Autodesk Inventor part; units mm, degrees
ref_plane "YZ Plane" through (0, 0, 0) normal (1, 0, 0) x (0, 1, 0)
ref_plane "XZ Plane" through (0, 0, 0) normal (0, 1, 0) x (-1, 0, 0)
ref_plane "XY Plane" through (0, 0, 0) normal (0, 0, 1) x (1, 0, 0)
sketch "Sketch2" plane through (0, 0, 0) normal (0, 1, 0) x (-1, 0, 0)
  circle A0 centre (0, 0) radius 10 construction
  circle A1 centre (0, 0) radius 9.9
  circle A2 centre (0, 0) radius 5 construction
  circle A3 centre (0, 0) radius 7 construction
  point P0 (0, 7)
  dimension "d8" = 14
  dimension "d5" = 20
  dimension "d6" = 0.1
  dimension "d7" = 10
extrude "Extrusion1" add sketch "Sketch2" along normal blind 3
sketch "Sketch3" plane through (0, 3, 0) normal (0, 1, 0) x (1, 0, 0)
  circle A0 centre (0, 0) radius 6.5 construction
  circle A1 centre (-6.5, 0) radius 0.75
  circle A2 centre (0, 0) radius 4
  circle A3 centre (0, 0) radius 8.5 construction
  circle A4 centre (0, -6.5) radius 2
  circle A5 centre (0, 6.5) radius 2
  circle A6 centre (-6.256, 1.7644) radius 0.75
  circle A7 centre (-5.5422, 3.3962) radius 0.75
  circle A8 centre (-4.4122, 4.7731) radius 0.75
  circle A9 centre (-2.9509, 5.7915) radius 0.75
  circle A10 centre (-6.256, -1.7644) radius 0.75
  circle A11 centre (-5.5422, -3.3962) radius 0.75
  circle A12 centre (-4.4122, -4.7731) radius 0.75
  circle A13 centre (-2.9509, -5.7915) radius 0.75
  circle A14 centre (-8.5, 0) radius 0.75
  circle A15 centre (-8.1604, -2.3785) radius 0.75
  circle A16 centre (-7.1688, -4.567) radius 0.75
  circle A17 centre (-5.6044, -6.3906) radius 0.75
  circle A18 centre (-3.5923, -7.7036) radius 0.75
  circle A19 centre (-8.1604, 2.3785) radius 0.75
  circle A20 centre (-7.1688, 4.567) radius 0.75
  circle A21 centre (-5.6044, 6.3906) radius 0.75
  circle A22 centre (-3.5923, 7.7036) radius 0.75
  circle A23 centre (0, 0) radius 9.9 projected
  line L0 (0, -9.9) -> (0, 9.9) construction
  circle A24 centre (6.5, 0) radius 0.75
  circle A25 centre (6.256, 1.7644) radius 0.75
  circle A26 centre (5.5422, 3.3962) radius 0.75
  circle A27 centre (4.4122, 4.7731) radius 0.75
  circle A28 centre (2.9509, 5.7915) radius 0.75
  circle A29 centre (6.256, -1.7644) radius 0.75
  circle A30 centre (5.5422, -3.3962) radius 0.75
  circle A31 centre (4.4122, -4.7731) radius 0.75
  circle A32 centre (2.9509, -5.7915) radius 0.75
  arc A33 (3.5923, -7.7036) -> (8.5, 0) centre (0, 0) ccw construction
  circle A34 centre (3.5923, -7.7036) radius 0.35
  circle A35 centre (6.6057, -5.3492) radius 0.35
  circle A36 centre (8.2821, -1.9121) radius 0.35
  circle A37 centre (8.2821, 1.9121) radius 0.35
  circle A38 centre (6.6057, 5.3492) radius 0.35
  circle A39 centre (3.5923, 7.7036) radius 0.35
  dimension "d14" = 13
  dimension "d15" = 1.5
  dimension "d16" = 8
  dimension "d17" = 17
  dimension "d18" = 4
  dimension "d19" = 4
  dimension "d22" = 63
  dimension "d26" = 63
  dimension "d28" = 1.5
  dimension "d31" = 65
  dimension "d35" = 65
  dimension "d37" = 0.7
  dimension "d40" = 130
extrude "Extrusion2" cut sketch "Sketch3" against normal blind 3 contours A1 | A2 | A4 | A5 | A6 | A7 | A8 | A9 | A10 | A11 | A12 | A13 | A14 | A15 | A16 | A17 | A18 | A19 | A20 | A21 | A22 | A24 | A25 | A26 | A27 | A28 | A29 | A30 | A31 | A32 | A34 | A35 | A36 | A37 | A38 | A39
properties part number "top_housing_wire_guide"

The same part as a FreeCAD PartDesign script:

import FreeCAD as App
import Part
import Sketcher
Q = App.Units.Quantity

doc = App.newDocument("Part")
body = doc.addObject("PartDesign::Body", "Body")

sketch1 = doc.addObject("Sketcher::SketchObject", "Sketch")
body.addObject(sketch1)
sketch1.AttachmentSupport = (doc.XZ_Plane, [""])
sketch1.MapMode = "FlatFace"
sketch1.addGeometry(Part.Circle(App.Vector(0, 0, 0), App.Vector(0, 0, 1), 9.9), False)
sketch1.addConstraint([
    Sketcher.Constraint("Coincident", 0, 3, -1, 1),
    Sketcher.Constraint("Diameter", 0, Q("19.8 mm")),
])
pad1 = doc.addObject("PartDesign::Pad", "Pad")
body.addObject(pad1)
pad1.Profile = sketch1
pad1.Length = 3
pad1.Reversed = True

sketch2 = doc.addObject("Sketcher::SketchObject", "Sketch001")
body.addObject(sketch2)
sketch2.AttachmentSupport = (doc.XZ_Plane, [""])
sketch2.MapMode = "FlatFace"
sketch2.AttachmentOffset = App.Placement(App.Vector(0, 0, -3), App.Rotation())
sketch2.addGeometry([
    Part.Circle(App.Vector(-6.5, 0, 0), App.Vector(0, 0, 1), 0.75),
    Part.Circle(App.Vector(0, 0, 0), App.Vector(0, 0, 1), 4),
    Part.Circle(App.Vector(0, 6.5, 0), App.Vector(0, 0, 1), 2),
    Part.Circle(App.Vector(0, -6.5, 0), App.Vector(0, 0, 1), 2),
    Part.Circle(App.Vector(-6.256, -1.7644, 0), App.Vector(0, 0, 1), 0.75),
    Part.Circle(App.Vector(-5.5422, -3.3962, 0), App.Vector(0, 0, 1), 0.75),
    Part.Circle(App.Vector(-4.4122, -4.7731, 0), App.Vector(0, 0, 1), 0.75),
    Part.Circle(App.Vector(-2.9509, -5.7915, 0), App.Vector(0, 0, 1), 0.75),
    Part.Circle(App.Vector(-6.256, 1.7644, 0), App.Vector(0, 0, 1), 0.75),
    Part.Circle(App.Vector(-5.5422, 3.3962, 0), App.Vector(0, 0, 1), 0.75),
    Part.Circle(App.Vector(-4.4122, 4.7731, 0), App.Vector(0, 0, 1), 0.75),
    Part.Circle(App.Vector(-2.9509, 5.7915, 0), App.Vector(0, 0, 1), 0.75),
    Part.Circle(App.Vector(-8.5, 0, 0), App.Vector(0, 0, 1), 0.75),
    Part.Circle(App.Vector(-8.1604, 2.3785, 0), App.Vector(0, 0, 1), 0.75),
    Part.Circle(App.Vector(-7.1688, 4.567, 0), App.Vector(0, 0, 1), 0.75),
    Part.Circle(App.Vector(-5.6044, 6.3906, 0), App.Vector(0, 0, 1), 0.75),
    Part.Circle(App.Vector(-3.5923, 7.7036, 0), App.Vector(0, 0, 1), 0.75),
    Part.Circle(App.Vector(-8.1604, -2.3785, 0), App.Vector(0, 0, 1), 0.75),
    Part.Circle(App.Vector(-7.1688, -4.567, 0), App.Vector(0, 0, 1), 0.75),
    Part.Circle(App.Vector(-5.6044, -6.3906, 0), App.Vector(0, 0, 1), 0.75),
    Part.Circle(App.Vector(-3.5923, -7.7036, 0), App.Vector(0, 0, 1), 0.75),
    Part.Circle(App.Vector(6.5, 0, 0), App.Vector(0, 0, 1), 0.75),
    Part.Circle(App.Vector(6.256, -1.7644, 0), App.Vector(0, 0, 1), 0.75),
    Part.Circle(App.Vector(5.5422, -3.3962, 0), App.Vector(0, 0, 1), 0.75),
    Part.Circle(App.Vector(4.4122, -4.7731, 0), App.Vector(0, 0, 1), 0.75),
    Part.Circle(App.Vector(2.9509, -5.7915, 0), App.Vector(0, 0, 1), 0.75),
    Part.Circle(App.Vector(6.256, 1.7644, 0), App.Vector(0, 0, 1), 0.75),
    Part.Circle(App.Vector(5.5422, 3.3962, 0), App.Vector(0, 0, 1), 0.75),
    Part.Circle(App.Vector(4.4122, 4.7731, 0), App.Vector(0, 0, 1), 0.75),
    Part.Circle(App.Vector(2.9509, 5.7915, 0), App.Vector(0, 0, 1), 0.75),
    Part.Circle(App.Vector(3.5923, 7.7036, 0), App.Vector(0, 0, 1), 0.35),
    Part.Circle(App.Vector(6.6057, 5.3492, 0), App.Vector(0, 0, 1), 0.35),
    Part.Circle(App.Vector(8.2821, 1.9121, 0), App.Vector(0, 0, 1), 0.35),
    Part.Circle(App.Vector(8.2821, -1.9121, 0), App.Vector(0, 0, 1), 0.35),
    Part.Circle(App.Vector(6.6057, -5.3492, 0), App.Vector(0, 0, 1), 0.35),
    Part.Circle(App.Vector(3.5923, -7.7036, 0), App.Vector(0, 0, 1), 0.35),
], False)
sketch2.addConstraint([
    Sketcher.Constraint("Coincident", 1, 3, -1, 1),
    Sketcher.Constraint("Equal", 2, 3),
    Sketcher.Constraint("Equal", 0, 4),
    Sketcher.Constraint("Equal", 4, 5),
    Sketcher.Constraint("Equal", 5, 6),
    Sketcher.Constraint("Equal", 6, 7),
    Sketcher.Constraint("Equal", 7, 8),
    Sketcher.Constraint("Equal", 8, 9),
    Sketcher.Constraint("Equal", 9, 10),
    Sketcher.Constraint("Equal", 10, 11),
    Sketcher.Constraint("Equal", 11, 12),
    Sketcher.Constraint("Equal", 12, 13),
    Sketcher.Constraint("Equal", 13, 14),
    Sketcher.Constraint("Equal", 14, 15),
    Sketcher.Constraint("Equal", 15, 16),
    Sketcher.Constraint("Equal", 16, 17),
    Sketcher.Constraint("Equal", 17, 18),
    Sketcher.Constraint("Equal", 18, 19),
    Sketcher.Constraint("Equal", 19, 20),
    Sketcher.Constraint("Equal", 20, 21),
    Sketcher.Constraint("Equal", 21, 22),
    Sketcher.Constraint("Equal", 22, 23),
    Sketcher.Constraint("Equal", 23, 24),
    Sketcher.Constraint("Equal", 24, 25),
    Sketcher.Constraint("Equal", 25, 26),
    Sketcher.Constraint("Equal", 26, 27),
    Sketcher.Constraint("Equal", 27, 28),
    Sketcher.Constraint("Equal", 28, 29),
    Sketcher.Constraint("Equal", 30, 31),
    Sketcher.Constraint("Equal", 31, 32),
    Sketcher.Constraint("Equal", 32, 33),
    Sketcher.Constraint("Equal", 33, 34),
    Sketcher.Constraint("Equal", 34, 35),
    Sketcher.Constraint("Symmetric", 2, 3, 3, 3, -1, 1),
    Sketcher.Constraint("Symmetric", 0, 3, 21, 3, -1, 1),
    Sketcher.Constraint("Symmetric", 8, 3, 22, 3, -1, 1),
    Sketcher.Constraint("Symmetric", 9, 3, 23, 3, -1, 1),
    Sketcher.Constraint("Symmetric", 10, 3, 24, 3, -1, 1),
    Sketcher.Constraint("Symmetric", 11, 3, 25, 3, -1, 1),
    Sketcher.Constraint("Symmetric", 4, 3, 26, 3, -1, 1),
    Sketcher.Constraint("Symmetric", 5, 3, 27, 3, -1, 1),
    Sketcher.Constraint("Symmetric", 6, 3, 28, 3, -1, 1),
    Sketcher.Constraint("Symmetric", 7, 3, 29, 3, -1, 1),
    Sketcher.Constraint("Symmetric", 20, 3, 30, 3, -1, 1),
    Sketcher.Constraint("Symmetric", 16, 3, 35, 3, -1, 1),
    Sketcher.Constraint("Symmetric", 4, 3, 22, 3, -2),
    Sketcher.Constraint("Symmetric", 5, 3, 23, 3, -2),
    Sketcher.Constraint("Symmetric", 6, 3, 24, 3, -2),
    Sketcher.Constraint("Symmetric", 7, 3, 25, 3, -2),
    Sketcher.Constraint("Symmetric", 16, 3, 30, 3, -2),
    Sketcher.Constraint("Symmetric", 13, 3, 17, 3, -1),
    Sketcher.Constraint("Symmetric", 14, 3, 18, 3, -1),
    Sketcher.Constraint("Symmetric", 15, 3, 19, 3, -1),
    Sketcher.Constraint("Symmetric", 32, 3, 33, 3, -1),
    Sketcher.Constraint("Symmetric", 31, 3, 34, 3, -1),
    Sketcher.Constraint("PointOnObject", 0, 3, -1),
    Sketcher.Constraint("PointOnObject", 2, 3, -2),
    Sketcher.Constraint("PointOnObject", 12, 3, -1),
    Sketcher.Constraint("Diameter", 1, Q("8 mm")),
    Sketcher.Constraint("Diameter", 2, Q("4 mm")),
    Sketcher.Constraint("Diameter", 0, Q("1.5 mm")),
    Sketcher.Constraint("Diameter", 30, Q("0.7 mm")),
    Sketcher.Constraint("DistanceY", 3, 3, 2, 3, Q("13 mm")),
    Sketcher.Constraint("DistanceX", 12, 3, 0, 3, Q("2 mm")),
    Sketcher.Constraint("DistanceX", 0, 3, -1, 1, Q("6.5 mm")),
    Sketcher.Constraint("DistanceX", 5, 3, 6, 3, Q("1.13 mm")),
    Sketcher.Constraint("DistanceX", 10, 3, 16, 3, Q("0.82 mm")),
    Sketcher.Constraint("DistanceX", 27, 3, 32, 3, Q("2.74 mm")),
    Sketcher.Constraint("DistanceX", 4, 3, -1, 1, Q("6.256 mm")),
    Sketcher.Constraint("DistanceY", 6, 3, -1, 1, Q("4.773 mm")),
    Sketcher.Constraint("DistanceX", 7, 3, -1, 1, Q("2.951 mm")),
    Sketcher.Constraint("DistanceY", -1, 1, 14, 3, Q("4.567 mm")),
    Sketcher.Constraint("DistanceX", -1, 1, 32, 3, Q("8.282 mm")),
    Sketcher.Constraint("DistanceY", -1, 1, 32, 3, Q("1.912 mm")),
    Sketcher.Constraint("DistanceY", 6, 3, 5, 3, Q("1.377 mm")),
    Sketcher.Constraint("DistanceY", 7, 3, 4, 3, Q("4.027 mm")),
    Sketcher.Constraint("DistanceY", 8, 3, 13, 3, Q("0.614 mm")),
    Sketcher.Constraint("DistanceX", 14, 3, 11, 3, Q("4.218 mm")),
    Sketcher.Constraint("DistanceY", 11, 3, 15, 3, Q("0.599 mm")),
    Sketcher.Constraint("DistanceY", 11, 3, 16, 3, Q("1.912 mm")),
    Sketcher.Constraint("DistanceX", 15, 3, 16, 3, Q("2.012 mm")),
    Sketcher.Constraint("DistanceY", 27, 3, 31, 3, Q("1.953 mm")),
    Sketcher.Constraint("DistanceY", 4, 3, -1, 1, Q("1.7644 mm")),
    Sketcher.Constraint("DistanceX", 13, 3, -1, 1, Q("8.1604 mm")),
    Sketcher.Constraint("DistanceX", -1, 1, 31, 3, Q("6.6057 mm")),
])
pocket1 = doc.addObject("PartDesign::Pocket", "Pocket")
body.addObject(pocket1)
pocket1.Profile = sketch2
pocket1.Length = 3
pocket1.Reversed = True

doc.recompute()
